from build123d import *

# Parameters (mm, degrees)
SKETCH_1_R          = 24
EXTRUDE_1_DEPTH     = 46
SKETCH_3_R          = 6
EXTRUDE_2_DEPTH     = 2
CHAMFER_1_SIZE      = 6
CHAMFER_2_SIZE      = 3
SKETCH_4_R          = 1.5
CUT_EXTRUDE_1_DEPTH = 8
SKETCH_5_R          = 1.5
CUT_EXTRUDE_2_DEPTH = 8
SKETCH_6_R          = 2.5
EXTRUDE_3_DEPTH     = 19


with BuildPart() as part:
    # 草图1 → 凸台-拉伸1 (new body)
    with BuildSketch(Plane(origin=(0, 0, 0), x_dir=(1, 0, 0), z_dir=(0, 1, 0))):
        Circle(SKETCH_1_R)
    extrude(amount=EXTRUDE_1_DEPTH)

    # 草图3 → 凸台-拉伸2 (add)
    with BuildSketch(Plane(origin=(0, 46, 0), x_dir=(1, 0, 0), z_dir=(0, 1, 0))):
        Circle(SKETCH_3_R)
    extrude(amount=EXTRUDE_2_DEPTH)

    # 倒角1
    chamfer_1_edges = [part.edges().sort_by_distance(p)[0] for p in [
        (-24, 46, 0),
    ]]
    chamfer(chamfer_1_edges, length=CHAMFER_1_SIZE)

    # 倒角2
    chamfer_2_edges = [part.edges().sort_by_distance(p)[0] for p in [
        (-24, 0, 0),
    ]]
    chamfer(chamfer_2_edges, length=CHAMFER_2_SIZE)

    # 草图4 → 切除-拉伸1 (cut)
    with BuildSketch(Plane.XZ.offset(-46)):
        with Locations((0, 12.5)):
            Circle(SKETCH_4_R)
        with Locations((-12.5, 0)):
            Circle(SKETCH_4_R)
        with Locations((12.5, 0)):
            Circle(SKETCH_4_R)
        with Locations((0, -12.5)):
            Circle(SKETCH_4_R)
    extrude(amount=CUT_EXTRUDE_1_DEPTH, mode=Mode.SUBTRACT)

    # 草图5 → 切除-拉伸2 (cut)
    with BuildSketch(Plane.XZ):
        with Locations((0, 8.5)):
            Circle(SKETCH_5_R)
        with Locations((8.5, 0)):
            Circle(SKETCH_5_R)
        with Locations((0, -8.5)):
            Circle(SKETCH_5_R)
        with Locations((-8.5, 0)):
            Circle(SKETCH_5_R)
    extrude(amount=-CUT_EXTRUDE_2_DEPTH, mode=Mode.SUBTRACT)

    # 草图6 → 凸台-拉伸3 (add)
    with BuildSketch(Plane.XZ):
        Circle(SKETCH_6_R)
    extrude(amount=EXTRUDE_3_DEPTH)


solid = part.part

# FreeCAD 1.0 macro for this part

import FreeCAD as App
import Part
import Sketcher
Q = App.Units.Quantity


def edges_at(feature, points):
    """Names of the edges that pass closest to the given points."""
    edges = feature.Shape.Edges
    near = lambda p: min(range(len(edges)), key=lambda i: edges[i].distToShape(Part.Vertex(*p))[0])
    return sorted({f"Edge{near(p) + 1}" for p in points})

doc = App.newDocument("Part")
params = doc.addObject("Spreadsheet::Sheet", "Params")
for row, (alias, value) in enumerate([
    ("sketch1_diameter", "48 mm"),
    ("pad1_length", "46 mm"),
    ("sketch2_diameter", "12 mm"),
    ("pad2_length", "2 mm"),
    ("chamfer_size", "6 mm"),
    ("chamfer2_size", "3 mm"),
    ("sketch3_diameter", "3 mm"),
    ("pocket1_length", "8 mm"),
    ("sketch4_diameter", "3 mm"),
    ("pocket2_length", "8 mm"),
    ("sketch5_diameter", "5 mm"),
    ("pad3_length", "19 mm"),
], start=1):
    params.set(f"A{row}", alias)
    params.set(f"B{row}", "=" + value)
    params.setAlias(f"B{row}", alias)

body = doc.addObject("PartDesign::Body", "Body")

# Sketch on XZ plane
sketch1 = doc.addObject("Sketcher::SketchObject", "Sketch")
body.addObject(sketch1)
sketch1.AttachmentSupport = (doc.XZ_Plane, [""])
sketch1.MapMode = "FlatFace"
sketch1.addGeometry(Part.Circle(App.Vector(0, 0, 0), App.Vector(0, 0, 1), 24), False)
sketch1.addConstraint([
    Sketcher.Constraint("Coincident", 0, 3, -1, 1),
    Sketcher.Constraint("Diameter", 0, Q("48 mm")),
])
sketch1.setExpression("Constraints[1]", "Params.sketch1_diameter")
pad1 = doc.addObject("PartDesign::Pad", "Pad")
body.addObject(pad1)
pad1.Profile = sketch1
pad1.setExpression("Length", "Params.pad1_length")
pad1.Reversed = True

# Sketch on XZ plane
sketch2 = doc.addObject("Sketcher::SketchObject", "Sketch001")
body.addObject(sketch2)
sketch2.AttachmentSupport = (doc.XZ_Plane, [""])
sketch2.MapMode = "FlatFace"
sketch2.AttachmentOffset = App.Placement(App.Vector(0, 0, -46), App.Rotation())
sketch2.addGeometry(Part.Circle(App.Vector(0, 0, 0), App.Vector(0, 0, 1), 6), False)
sketch2.addConstraint([
    Sketcher.Constraint("Coincident", 0, 3, -1, 1),
    Sketcher.Constraint("Diameter", 0, Q("12 mm")),
])
sketch2.setExpression("Constraints[1]", "Params.sketch2_diameter")
pad2 = doc.addObject("PartDesign::Pad", "Pad001")
body.addObject(pad2)
pad2.Profile = sketch2
pad2.setExpression("Length", "Params.pad2_length")
pad2.Reversed = True
doc.recompute()

chamfer = doc.addObject("PartDesign::Chamfer", "Chamfer")
body.addObject(chamfer)
chamfer.Base = (pad2, edges_at(pad2, [(-24, 46, 0)]))
chamfer.setExpression("Size", "Params.chamfer_size")
doc.recompute()

chamfer2 = doc.addObject("PartDesign::Chamfer", "Chamfer001")
body.addObject(chamfer2)
chamfer2.Base = (chamfer, edges_at(chamfer, [(-24, 0, 0)]))
chamfer2.setExpression("Size", "Params.chamfer2_size")

# Sketch on XZ plane
sketch3 = doc.addObject("Sketcher::SketchObject", "Sketch002")
body.addObject(sketch3)
sketch3.AttachmentSupport = (doc.XZ_Plane, [""])
sketch3.MapMode = "FlatFace"
sketch3.AttachmentOffset = App.Placement(App.Vector(0, 0, -46), App.Rotation())
sketch3.addGeometry([
    Part.Circle(App.Vector(0, 12.5, 0), App.Vector(0, 0, 1), 1.5),
    Part.Circle(App.Vector(-12.5, 0, 0), App.Vector(0, 0, 1), 1.5),
    Part.Circle(App.Vector(12.5, 0, 0), App.Vector(0, 0, 1), 1.5),
    Part.Circle(App.Vector(0, -12.5, 0), App.Vector(0, 0, 1), 1.5),
], False)
sketch3.addConstraint([
    Sketcher.Constraint("Equal", 0, 1),
    Sketcher.Constraint("Equal", 1, 2),
    Sketcher.Constraint("Equal", 2, 3),
    Sketcher.Constraint("Symmetric", 1, 3, 2, 3, -1, 1),
    Sketcher.Constraint("Symmetric", 0, 3, 3, 3, -1, 1),
    Sketcher.Constraint("PointOnObject", 0, 3, -2),
    Sketcher.Constraint("PointOnObject", 1, 3, -1),
    Sketcher.Constraint("Diameter", 0, Q("3 mm")),
    Sketcher.Constraint("DistanceX", 1, 3, 2, 3, Q("25 mm")),
    Sketcher.Constraint("DistanceY", 3, 3, 0, 3, Q("25 mm")),
])
sketch3.setExpression("Constraints[7]", "Params.sketch3_diameter")
pocket1 = doc.addObject("PartDesign::Pocket", "Pocket")
body.addObject(pocket1)
pocket1.Profile = sketch3
pocket1.setExpression("Length", "Params.pocket1_length")
pocket1.Reversed = True

# Sketch on XZ plane
sketch4 = doc.addObject("Sketcher::SketchObject", "Sketch003")
body.addObject(sketch4)
sketch4.AttachmentSupport = (doc.XZ_Plane, [""])
sketch4.MapMode = "FlatFace"
sketch4.addGeometry([
    Part.Circle(App.Vector(0, 8.5, 0), App.Vector(0, 0, 1), 1.5),
    Part.Circle(App.Vector(8.5, 0, 0), App.Vector(0, 0, 1), 1.5),
    Part.Circle(App.Vector(0, -8.5, 0), App.Vector(0, 0, 1), 1.5),
    Part.Circle(App.Vector(-8.5, 0, 0), App.Vector(0, 0, 1), 1.5),
], False)
sketch4.addConstraint([
    Sketcher.Constraint("Equal", 0, 1),
    Sketcher.Constraint("Equal", 1, 2),
    Sketcher.Constraint("Equal", 2, 3),
    Sketcher.Constraint("Symmetric", 0, 3, 2, 3, -1, 1),
    Sketcher.Constraint("Symmetric", 1, 3, 3, 3, -1, 1),
    Sketcher.Constraint("PointOnObject", 0, 3, -2),
    Sketcher.Constraint("PointOnObject", 1, 3, -1),
    Sketcher.Constraint("Diameter", 0, Q("3 mm")),
    Sketcher.Constraint("DistanceY", 2, 3, 0, 3, Q("17 mm")),
    Sketcher.Constraint("DistanceX", 3, 3, 1, 3, Q("17 mm")),
])
sketch4.setExpression("Constraints[7]", "Params.sketch4_diameter")
pocket2 = doc.addObject("PartDesign::Pocket", "Pocket001")
body.addObject(pocket2)
pocket2.Profile = sketch4
pocket2.setExpression("Length", "Params.pocket2_length")

# Sketch on XZ plane
sketch5 = doc.addObject("Sketcher::SketchObject", "Sketch004")
body.addObject(sketch5)
sketch5.AttachmentSupport = (doc.XZ_Plane, [""])
sketch5.MapMode = "FlatFace"
sketch5.addGeometry(Part.Circle(App.Vector(0, 0, 0), App.Vector(0, 0, 1), 2.5), False)
sketch5.addConstraint([
    Sketcher.Constraint("Coincident", 0, 3, -1, 1),
    Sketcher.Constraint("Diameter", 0, Q("5 mm")),
])
sketch5.setExpression("Constraints[1]", "Params.sketch5_diameter")
pad3 = doc.addObject("PartDesign::Pad", "Pad002")
body.addObject(pad3)
pad3.Profile = sketch5
pad3.setExpression("Length", "Params.pad3_length")

doc.recompute()
